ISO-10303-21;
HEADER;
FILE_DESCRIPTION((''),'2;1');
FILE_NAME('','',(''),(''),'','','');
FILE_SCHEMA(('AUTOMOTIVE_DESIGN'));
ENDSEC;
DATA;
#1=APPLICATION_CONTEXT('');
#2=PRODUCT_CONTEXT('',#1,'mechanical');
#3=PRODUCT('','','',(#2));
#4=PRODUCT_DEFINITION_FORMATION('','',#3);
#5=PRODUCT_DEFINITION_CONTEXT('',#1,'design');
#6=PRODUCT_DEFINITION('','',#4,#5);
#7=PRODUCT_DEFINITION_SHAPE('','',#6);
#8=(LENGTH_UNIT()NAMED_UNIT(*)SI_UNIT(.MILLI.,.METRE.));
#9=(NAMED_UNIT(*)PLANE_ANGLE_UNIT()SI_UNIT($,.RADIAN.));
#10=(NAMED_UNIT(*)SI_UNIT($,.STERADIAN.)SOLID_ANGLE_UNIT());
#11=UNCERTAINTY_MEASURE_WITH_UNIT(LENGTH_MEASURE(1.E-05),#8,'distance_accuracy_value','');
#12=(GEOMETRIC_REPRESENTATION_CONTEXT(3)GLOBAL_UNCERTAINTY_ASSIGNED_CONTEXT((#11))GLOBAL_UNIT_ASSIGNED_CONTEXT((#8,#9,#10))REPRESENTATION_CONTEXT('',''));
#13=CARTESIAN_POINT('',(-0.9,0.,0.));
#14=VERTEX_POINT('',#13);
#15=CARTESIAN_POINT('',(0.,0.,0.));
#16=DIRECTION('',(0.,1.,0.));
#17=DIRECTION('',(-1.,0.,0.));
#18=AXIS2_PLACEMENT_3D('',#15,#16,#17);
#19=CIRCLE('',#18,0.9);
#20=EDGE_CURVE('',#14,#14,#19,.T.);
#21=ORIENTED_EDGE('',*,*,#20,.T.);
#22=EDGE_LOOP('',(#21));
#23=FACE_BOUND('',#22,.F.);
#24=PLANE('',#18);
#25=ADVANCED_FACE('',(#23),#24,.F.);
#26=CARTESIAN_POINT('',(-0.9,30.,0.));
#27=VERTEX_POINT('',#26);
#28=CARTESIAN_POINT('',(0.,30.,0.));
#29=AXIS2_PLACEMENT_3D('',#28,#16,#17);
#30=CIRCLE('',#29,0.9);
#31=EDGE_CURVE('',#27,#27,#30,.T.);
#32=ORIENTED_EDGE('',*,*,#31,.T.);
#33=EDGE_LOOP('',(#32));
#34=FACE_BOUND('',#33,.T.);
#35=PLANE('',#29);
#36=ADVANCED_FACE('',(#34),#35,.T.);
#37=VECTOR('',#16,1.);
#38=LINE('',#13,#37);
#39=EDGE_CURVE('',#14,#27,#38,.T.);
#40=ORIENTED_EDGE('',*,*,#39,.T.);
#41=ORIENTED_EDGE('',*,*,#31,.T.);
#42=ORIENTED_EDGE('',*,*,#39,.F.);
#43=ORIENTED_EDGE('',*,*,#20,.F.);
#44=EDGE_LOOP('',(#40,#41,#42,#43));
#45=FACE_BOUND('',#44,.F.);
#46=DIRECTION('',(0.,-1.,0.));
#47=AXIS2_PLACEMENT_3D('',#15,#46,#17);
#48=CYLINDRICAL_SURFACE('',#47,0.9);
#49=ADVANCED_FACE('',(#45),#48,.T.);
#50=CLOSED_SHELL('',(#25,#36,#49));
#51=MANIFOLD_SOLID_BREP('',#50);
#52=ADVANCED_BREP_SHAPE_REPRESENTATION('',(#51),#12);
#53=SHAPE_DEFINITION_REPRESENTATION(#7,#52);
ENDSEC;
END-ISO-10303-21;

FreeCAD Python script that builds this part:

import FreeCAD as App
import Part
import Sketcher
from FreeCAD import Vector
Q = App.Units.Quantity

doc = App.newDocument("Part")
body = doc.addObject("PartDesign::Body", "Body")

sketch1 = body.newObject("Sketcher::SketchObject", "Sketch")
sketch1.AttachmentSupport = (doc.getObject("XZ_Plane"), [""])
sketch1.MapMode = "FlatFace"
sketch1.addGeometry(Part.Circle(Vector(0, 0, 0), Vector(0, 0, 1), 0.9), False)
sketch1.addConstraint(Sketcher.Constraint("Coincident", 0, 3, -1, 1))
sketch1.addConstraint(Sketcher.Constraint("Diameter", 0, Q("1.8 mm")))
pad1 = body.newObject("PartDesign::Pad", "Pad")
pad1.Profile = sketch1
pad1.Length = 30
pad1.Reversed = True

doc.recompute()
